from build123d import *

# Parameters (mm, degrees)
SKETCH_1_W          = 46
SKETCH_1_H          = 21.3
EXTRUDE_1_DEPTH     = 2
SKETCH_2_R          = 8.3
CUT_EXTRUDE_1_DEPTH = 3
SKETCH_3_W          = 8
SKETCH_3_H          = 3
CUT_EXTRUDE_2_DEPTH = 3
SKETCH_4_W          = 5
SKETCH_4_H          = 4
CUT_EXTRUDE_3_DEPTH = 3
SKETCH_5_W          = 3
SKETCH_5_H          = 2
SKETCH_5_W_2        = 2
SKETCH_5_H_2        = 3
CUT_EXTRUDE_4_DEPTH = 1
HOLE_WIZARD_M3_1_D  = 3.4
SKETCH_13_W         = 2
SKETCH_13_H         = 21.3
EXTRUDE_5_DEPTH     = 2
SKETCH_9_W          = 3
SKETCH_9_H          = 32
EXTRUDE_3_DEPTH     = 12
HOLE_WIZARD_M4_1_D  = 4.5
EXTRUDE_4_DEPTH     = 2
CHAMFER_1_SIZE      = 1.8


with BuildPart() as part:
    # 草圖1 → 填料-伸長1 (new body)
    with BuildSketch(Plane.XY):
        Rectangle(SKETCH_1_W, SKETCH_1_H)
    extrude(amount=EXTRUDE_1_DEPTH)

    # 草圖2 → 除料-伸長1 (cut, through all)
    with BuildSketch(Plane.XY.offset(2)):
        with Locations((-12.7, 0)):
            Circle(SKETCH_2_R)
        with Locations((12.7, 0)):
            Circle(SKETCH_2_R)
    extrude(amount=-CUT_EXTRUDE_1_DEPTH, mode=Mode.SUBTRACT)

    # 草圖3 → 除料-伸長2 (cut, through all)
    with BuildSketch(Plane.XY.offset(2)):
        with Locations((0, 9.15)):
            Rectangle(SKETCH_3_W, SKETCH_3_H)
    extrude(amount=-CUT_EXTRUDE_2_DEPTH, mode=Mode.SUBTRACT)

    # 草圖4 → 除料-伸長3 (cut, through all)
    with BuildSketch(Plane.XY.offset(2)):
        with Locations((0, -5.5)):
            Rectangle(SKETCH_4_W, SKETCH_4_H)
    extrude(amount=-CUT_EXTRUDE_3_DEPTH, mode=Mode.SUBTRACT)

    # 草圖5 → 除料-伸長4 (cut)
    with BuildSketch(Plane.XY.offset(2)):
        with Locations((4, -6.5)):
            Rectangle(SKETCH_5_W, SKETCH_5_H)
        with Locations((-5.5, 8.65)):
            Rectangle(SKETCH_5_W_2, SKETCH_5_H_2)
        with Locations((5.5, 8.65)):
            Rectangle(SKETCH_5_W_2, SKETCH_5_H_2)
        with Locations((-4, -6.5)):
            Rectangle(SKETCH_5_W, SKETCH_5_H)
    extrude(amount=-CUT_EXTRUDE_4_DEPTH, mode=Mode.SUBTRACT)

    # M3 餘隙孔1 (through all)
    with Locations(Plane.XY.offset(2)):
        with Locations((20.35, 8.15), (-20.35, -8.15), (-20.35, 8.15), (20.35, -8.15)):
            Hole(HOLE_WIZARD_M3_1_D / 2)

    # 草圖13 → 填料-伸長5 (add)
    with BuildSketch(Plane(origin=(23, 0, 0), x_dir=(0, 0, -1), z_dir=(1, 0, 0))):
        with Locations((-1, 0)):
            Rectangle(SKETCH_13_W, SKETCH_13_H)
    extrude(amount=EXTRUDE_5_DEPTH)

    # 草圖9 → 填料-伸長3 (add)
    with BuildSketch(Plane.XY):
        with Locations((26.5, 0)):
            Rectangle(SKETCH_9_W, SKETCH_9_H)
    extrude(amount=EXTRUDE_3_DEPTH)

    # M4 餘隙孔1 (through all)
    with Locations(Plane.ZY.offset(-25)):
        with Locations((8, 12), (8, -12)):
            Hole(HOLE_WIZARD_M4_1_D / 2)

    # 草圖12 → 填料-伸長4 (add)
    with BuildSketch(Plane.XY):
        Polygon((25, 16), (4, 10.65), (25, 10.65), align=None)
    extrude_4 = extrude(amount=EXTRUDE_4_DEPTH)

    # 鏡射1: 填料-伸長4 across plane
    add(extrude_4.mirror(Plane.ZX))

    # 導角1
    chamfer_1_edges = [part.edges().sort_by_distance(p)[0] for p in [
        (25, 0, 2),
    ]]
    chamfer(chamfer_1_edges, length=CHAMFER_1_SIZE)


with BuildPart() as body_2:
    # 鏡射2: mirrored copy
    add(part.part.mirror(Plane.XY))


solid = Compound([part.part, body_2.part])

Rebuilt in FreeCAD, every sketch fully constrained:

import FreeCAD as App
import Part
import Sketcher


def edges_at(feature, points):
    """Names of the edges that pass closest to the given points."""
    edges = feature.Shape.Edges
    near = lambda p: min(range(len(edges)), key=lambda i: edges[i].distToShape(Part.Vertex(*p))[0])
    return sorted({f"Edge{near(p) + 1}" for p in points})


def add_polygon(sketch, points):
    """Adds a closed chain of lines whose ends are joined by coincident constraints."""
    first, n = sketch.GeometryCount, len(points)
    for a, b in zip(points, points[1:] + points[:1]):
        sketch.addGeometry(Part.LineSegment(App.Vector(*a, 0), App.Vector(*b, 0)), False)
    for i in range(n):
        sketch.addConstraint(Sketcher.Constraint("Coincident", first + i, 2, first + (i + 1) % n, 1))

doc = App.newDocument("Part")
params = doc.addObject("Spreadsheet::Sheet", "Params")
for row, (alias, value) in enumerate([
    ("sketch1_width", "46 mm"),
    ("sketch1_height", "21.3 mm"),
    ("pad1_length", "2 mm"),
    ("sketch2_diameter", "16.6 mm"),
    ("sketch3_width", "8 mm"),
    ("sketch3_height", "3 mm"),
    ("sketch4_width", "5 mm"),
    ("sketch4_height", "4 mm"),
    ("sketch5_width", "3 mm"),
    ("sketch5_width2", "2 mm"),
    ("pocket4_length", "1 mm"),
    ("sketch6_diameter", "3.4 mm"),
    ("hole_diameter", "3.4 mm"),
    ("sketch7_height", "2 mm"),
    ("sketch7_width", "21.3 mm"),
    ("pad2_length", "2 mm"),
    ("sketch8_width", "3 mm"),
    ("sketch8_height", "32 mm"),
    ("pad3_length", "12 mm"),
    ("sketch9_diameter", "4.5 mm"),
    ("hole2_diameter", "4.5 mm"),
    ("sketch10_width", "21 mm"),
    ("sketch10_height", "5.35 mm"),
    ("pad4_length", "2 mm"),
    ("chamfer_size", "1.8 mm"),
], start=1):
    params.set(f"A{row}", alias)
    params.set(f"B{row}", "=" + value)
    params.setAlias(f"B{row}", alias)

body = doc.addObject("PartDesign::Body", "Body")

# Sketch on XY plane
sketch1 = body.newObject("Sketcher::SketchObject", "Sketch")
sketch1.AttachmentSupport = (doc.getObject("XY_Plane"), [""])
sketch1.MapMode = "FlatFace"
add_polygon(sketch1, [(-23, 11), (-23, -11), (23, -11), (23, 11)])  # lines 0-3
sketch1.addConstraint([
    Sketcher.Constraint("Vertical", 0),
    Sketcher.Constraint("Horizontal", 1),
    Sketcher.Constraint("Vertical", 2),
    Sketcher.Constraint("Horizontal", 3),
    Sketcher.Constraint("Symmetric", 0, 2, 2, 2, -1, 1),
    Sketcher.Constraint("DistanceX", 1, 1, 1, 2, 46.0),
    Sketcher.Constraint("DistanceY", 0, 2, 0, 1, 21.3),
])
sketch1.setExpression("Constraints[9]", "Params.sketch1_width")
sketch1.setExpression("Constraints[10]", "Params.sketch1_height")
pad1 = body.newObject("PartDesign::Pad", "Pad")
pad1.Profile = sketch1
pad1.setExpression("Length", "Params.pad1_length")

# Sketch on XY plane
sketch2 = body.newObject("Sketcher::SketchObject", "Sketch001")
sketch2.AttachmentSupport = (doc.getObject("XY_Plane"), [""])
sketch2.MapMode = "FlatFace"
sketch2.AttachmentOffset = App.Placement(App.Vector(0, 0, 2), App.Rotation())
sketch2.addGeometry([
    Part.Circle(App.Vector(-13, 0, 0), App.Vector(0, 0, 1), 8),
    Part.Circle(App.Vector(13, 0, 0), App.Vector(0, 0, 1), 8),
], False)
sketch2.addConstraint([
    Sketcher.Constraint("Equal", 0, 1),
    Sketcher.Constraint("Symmetric", 0, 3, 1, 3, -1, 1),
    Sketcher.Constraint("PointOnObject", 0, 3, -1),
    Sketcher.Constraint("Diameter", 0, 16.6),
    Sketcher.Constraint("DistanceX", 0, 3, -1, 1, 12.7),
])
sketch2.setExpression("Constraints[3]", "Params.sketch2_diameter")
pocket1 = body.newObject("PartDesign::Pocket", "Pocket")
pocket1.Profile = sketch2
pocket1.Type = "ThroughAll"

# Sketch on XY plane
sketch3 = body.newObject("Sketcher::SketchObject", "Sketch002")
sketch3.AttachmentSupport = (doc.getObject("XY_Plane"), [""])
sketch3.MapMode = "FlatFace"
sketch3.AttachmentOffset = App.Placement(App.Vector(0, 0, 2), App.Rotation())
add_polygon(sketch3, [(-4, 10.7), (-4, 7.7), (4, 7.7), (4, 10.7)])  # lines 0-3
sketch3.addConstraint([
    Sketcher.Constraint("Vertical", 0),
    Sketcher.Constraint("Horizontal", 1),
    Sketcher.Constraint("Vertical", 2),
    Sketcher.Constraint("Horizontal", 3),
    Sketcher.Constraint("DistanceX", 1, 1, 1, 2, 8.0),
    Sketcher.Constraint("DistanceY", 0, 2, 0, 1, 3.0),
    Sketcher.Constraint("DistanceX", 0, 2, -1, 1, 4.0),
    Sketcher.Constraint("DistanceY", -1, 1, 0, 2, 7.65),
])
sketch3.setExpression("Constraints[8]", "Params.sketch3_width")
sketch3.setExpression("Constraints[9]", "Params.sketch3_height")
pocket2 = body.newObject("PartDesign::Pocket", "Pocket001")
pocket2.Profile = sketch3
pocket2.Type = "ThroughAll"

# Sketch on XY plane
sketch4 = body.newObject("Sketcher::SketchObject", "Sketch003")
sketch4.AttachmentSupport = (doc.getObject("XY_Plane"), [""])
sketch4.MapMode = "FlatFace"
sketch4.AttachmentOffset = App.Placement(App.Vector(0, 0, 2), App.Rotation())
add_polygon(sketch4, [(-2.5, -3.5), (-2.5, -7.5), (2.5, -7.5), (2.5, -3.5)])  # lines 0-3
sketch4.addConstraint([
    Sketcher.Constraint("Vertical", 0),
    Sketcher.Constraint("Horizontal", 1),
    Sketcher.Constraint("Vertical", 2),
    Sketcher.Constraint("Horizontal", 3),
    Sketcher.Constraint("DistanceX", 1, 1, 1, 2, 5.0),
    Sketcher.Constraint("DistanceY", 0, 2, 0, 1, 4.0),
    Sketcher.Constraint("DistanceX", 0, 2, -1, 1, 2.5),
    Sketcher.Constraint("DistanceY", 0, 2, -1, 1, 7.5),
])
sketch4.setExpression("Constraints[8]", "Params.sketch4_width")
sketch4.setExpression("Constraints[9]", "Params.sketch4_height")
pocket3 = body.newObject("PartDesign::Pocket", "Pocket002")
pocket3.Profile = sketch4
pocket3.Type = "ThroughAll"

# Sketch on XY plane
sketch5 = body.newObject("Sketcher::SketchObject", "Sketch004")
sketch5.AttachmentSupport = (doc.getObject("XY_Plane"), [""])
sketch5.MapMode = "FlatFace"
sketch5.AttachmentOffset = App.Placement(App.Vector(0, 0, 2), App.Rotation())
add_polygon(sketch5, [(2.5, -5.5), (2.5, -7.5), (5.5, -7.5), (5.5, -5.5)])  # lines 0-3
add_polygon(sketch5, [(-6.5, 10.2), (-6.5, 7.2), (-4.5, 7.2), (-4.5, 10.2)])  # lines 4-7
add_polygon(sketch5, [(4.5, 10.2), (4.5, 7.2), (6.5, 7.2), (6.5, 10.2)])  # lines 8-11
add_polygon(sketch5, [(-5.5, -5.5), (-5.5, -7.5), (-2.5, -7.5), (-2.5, -5.5)])  # lines 12-15
sketch5.addConstraint([
    Sketcher.Constraint("Vertical", 0),
    Sketcher.Constraint("Horizontal", 1),
    Sketcher.Constraint("Vertical", 2),
    Sketcher.Constraint("Horizontal", 3),
    Sketcher.Constraint("Vertical", 4),
    Sketcher.Constraint("Horizontal", 5),
    Sketcher.Constraint("Vertical", 6),
    Sketcher.Constraint("Horizontal", 7),
    Sketcher.Constraint("Vertical", 8),
    Sketcher.Constraint("Horizontal", 9),
    Sketcher.Constraint("Vertical", 10),
    Sketcher.Constraint("Horizontal", 11),
    Sketcher.Constraint("Vertical", 12),
    Sketcher.Constraint("Horizontal", 13),
    Sketcher.Constraint("Vertical", 14),
    Sketcher.Constraint("Horizontal", 15),
    Sketcher.Constraint("Symmetric", 5, 2, 8, 2, -2),
    Sketcher.Constraint("Symmetric", 7, 2, 10, 2, -2),
    Sketcher.Constraint("Symmetric", 1, 2, 12, 2, -2),
    Sketcher.Constraint("Symmetric", 3, 2, 14, 2, -2),
    Sketcher.Constraint("Equal", 11, 0),
    Sketcher.Constraint("Equal", 15, 4),
    Sketcher.Constraint("DistanceX", 1, 1, 1, 2, 3.0),
    Sketcher.Constraint("DistanceX", 5, 1, 5, 2, 2.0),
    Sketcher.Constraint("DistanceX", 4, 2, 3, 2, 9.0),
    Sketcher.Constraint("DistanceX", 5, 2, 8, 2, 9.0),
    Sketcher.Constraint("DistanceY", 0, 2, -1, 1, 7.5),
    Sketcher.Constraint("DistanceY", -1, 1, 4, 2, 7.15),
])
sketch5.setExpression("Constraints[38]", "Params.sketch5_width")
sketch5.setExpression("Constraints[39]", "Params.sketch5_width2")
pocket4 = body.newObject("PartDesign::Pocket", "Pocket003")
pocket4.Profile = sketch5
pocket4.setExpression("Length", "Params.pocket4_length")

# Sketch on XY plane
sketch6 = body.newObject("Sketcher::SketchObject", "Sketch005")
sketch6.AttachmentSupport = (doc.getObject("XY_Plane"), [""])
sketch6.MapMode = "FlatFace"
sketch6.AttachmentOffset = App.Placement(App.Vector(0, 0, 2), App.Rotation())
sketch6.addGeometry([
    Part.Circle(App.Vector(20.4, 8.2, 0), App.Vector(0, 0, 1), 1.7),
    Part.Circle(App.Vector(-20.4, -8.2, 0), App.Vector(0, 0, 1), 1.7),
    Part.Circle(App.Vector(-20.4, 8.2, 0), App.Vector(0, 0, 1), 1.7),
    Part.Circle(App.Vector(20.4, -8.2, 0), App.Vector(0, 0, 1), 1.7),
], False)
sketch6.addConstraint([
    Sketcher.Constraint("Equal", 0, 1),
    Sketcher.Constraint("Equal", 1, 2),
    Sketcher.Constraint("Equal", 2, 3),
    Sketcher.Constraint("Symmetric", 0, 3, 1, 3, -1, 1),
    Sketcher.Constraint("Symmetric", 2, 3, 3, 3, -1, 1),
    Sketcher.Constraint("Symmetric", 0, 3, 2, 3, -2),
    Sketcher.Constraint("Diameter", 0, 3.4),
    Sketcher.Constraint("DistanceX", 1, 3, 0, 3, 40.7),
    Sketcher.Constraint("DistanceY", 1, 3, 0, 3, 16.3),
])
sketch6.setExpression("Constraints[6]", "Params.sketch6_diameter")
doc.recompute()
hole = body.newObject("PartDesign::Hole", "Hole")
hole.Profile = sketch6
hole.ThreadType = "None"
hole.setExpression("Diameter", "Params.hole_diameter")
hole.DepthType = "ThroughAll"

# Sketch on YZ plane
sketch7 = body.newObject("Sketcher::SketchObject", "Sketch006")
sketch7.AttachmentSupport = (doc.getObject("YZ_Plane"), [""])
sketch7.MapMode = "FlatFace"
sketch7.AttachmentOffset = App.Placement(App.Vector(0, 0, 23), App.Rotation())
add_polygon(sketch7, [(10.7, 2), (-10.7, 2), (-10.7, 0), (10.7, 0)])  # lines 0-3
sketch7.addConstraint([
    Sketcher.Constraint("Horizontal", 0),
    Sketcher.Constraint("Vertical", 1),
    Sketcher.Constraint("Horizontal", 2),
    Sketcher.Constraint("Vertical", 3),
    Sketcher.Constraint("Symmetric", 1, 2, 2, 2, -1, 1),
    Sketcher.Constraint("DistanceY", 1, 2, 1, 1, 2.0),
    Sketcher.Constraint("DistanceX", 0, 2, 0, 1, 21.3),
])
sketch7.setExpression("Constraints[9]", "Params.sketch7_height")
sketch7.setExpression("Constraints[10]", "Params.sketch7_width")
pad2 = body.newObject("PartDesign::Pad", "Pad001")
pad2.Profile = sketch7
pad2.setExpression("Length", "Params.pad2_length")

# Sketch on XY plane
sketch8 = body.newObject("Sketcher::SketchObject", "Sketch007")
sketch8.AttachmentSupport = (doc.getObject("XY_Plane"), [""])
sketch8.MapMode = "FlatFace"
add_polygon(sketch8, [(25, 16), (25, -16), (28, -16), (28, 16)])  # lines 0-3
sketch8.addConstraint([
    Sketcher.Constraint("Vertical", 0),
    Sketcher.Constraint("Horizontal", 1),
    Sketcher.Constraint("Vertical", 2),
    Sketcher.Constraint("Horizontal", 3),
    Sketcher.Constraint("DistanceX", 1, 1, 1, 2, 3.0),
    Sketcher.Constraint("DistanceY", 0, 2, 0, 1, 32.0),
    Sketcher.Constraint("DistanceX", -1, 1, 0, 2, 25.0),
    Sketcher.Constraint("DistanceY", 0, 2, -1, 1, 16.0),
])
sketch8.setExpression("Constraints[8]", "Params.sketch8_width")
sketch8.setExpression("Constraints[9]", "Params.sketch8_height")
pad3 = body.newObject("PartDesign::Pad", "Pad002")
pad3.Profile = sketch8
pad3.setExpression("Length", "Params.pad3_length")

# Sketch on YZ plane
sketch9 = body.newObject("Sketcher::SketchObject", "Sketch008")
sketch9.AttachmentSupport = (doc.getObject("YZ_Plane"), [""])
sketch9.MapMode = "FlatFace"
sketch9.AttachmentOffset = App.Placement(App.Vector(0, 0, 25), App.Rotation())
sketch9.addGeometry([
    Part.Circle(App.Vector(12, 8, 0), App.Vector(0, 0, 1), 2.2),
    Part.Circle(App.Vector(-12, 8, 0), App.Vector(0, 0, 1), 2.2),
], False)
sketch9.addConstraint([
    Sketcher.Constraint("Equal", 0, 1),
    Sketcher.Constraint("Symmetric", 0, 3, 1, 3, -2),
    Sketcher.Constraint("Diameter", 0, 4.5),
    Sketcher.Constraint("DistanceX", -1, 1, 0, 3, 12.0),
    Sketcher.Constraint("DistanceY", -1, 1, 0, 3, 8.0),
])
sketch9.setExpression("Constraints[2]", "Params.sketch9_diameter")
doc.recompute()
hole2 = body.newObject("PartDesign::Hole", "Hole001")
hole2.Profile = sketch9
hole2.ThreadType = "None"
hole2.setExpression("Diameter", "Params.hole2_diameter")
hole2.DepthType = "ThroughAll"
hole2.Reversed = True

# Sketch on XY plane
sketch10 = body.newObject("Sketcher::SketchObject", "Sketch009")
sketch10.AttachmentSupport = (doc.getObject("XY_Plane"), [""])
sketch10.MapMode = "FlatFace"
add_polygon(sketch10, [(25, 16), (4, 11), (25, 11)])  # lines 0-2
sketch10.addConstraint([
    Sketcher.Constraint("Horizontal", 1),
    Sketcher.Constraint("Vertical", 2),
    Sketcher.Constraint("DistanceX", 1, 1, 1, 2, 21.0),
    Sketcher.Constraint("DistanceX", -1, 1, 0, 2, 4.0),
    Sketcher.Constraint("DistanceY", -1, 1, 2, 2, 16.0),
    Sketcher.Constraint("DistanceY", 2, 1, 2, 2, 5.35),
])
sketch10.setExpression("Constraints[5]", "Params.sketch10_width")
sketch10.setExpression("Constraints[8]", "Params.sketch10_height")
pad4 = body.newObject("PartDesign::Pad", "Pad003")
pad4.Profile = sketch10
pad4.setExpression("Length", "Params.pad4_length")
doc.recompute()

mirrored = body.newObject("PartDesign::Mirrored", "Mirrored")
mirrored.Originals = [pad4]
mirrored.MirrorPlane = (doc.getObject("XZ_Plane"), [""])
body.Tip = mirrored
doc.recompute()

chamfer = body.newObject("PartDesign::Chamfer", "Chamfer")
chamfer.Base = (mirrored, edges_at(mirrored, [(25, 0, 2)]))
chamfer.setExpression("Size", "Params.chamfer_size")
body2 = doc.addObject("PartDesign::Body", "Body001")
doc.recompute()

mirroring = doc.addObject("Part::Mirroring", "Mirroring")
mirroring.Source = body
mirroring.Base = App.Vector(0, 0, 0)
mirroring.Normal = App.Vector(0, 0, 1)
body2.BaseFeature = mirroring
doc.recompute()
mirroring.Visibility = False

doc.recompute()
